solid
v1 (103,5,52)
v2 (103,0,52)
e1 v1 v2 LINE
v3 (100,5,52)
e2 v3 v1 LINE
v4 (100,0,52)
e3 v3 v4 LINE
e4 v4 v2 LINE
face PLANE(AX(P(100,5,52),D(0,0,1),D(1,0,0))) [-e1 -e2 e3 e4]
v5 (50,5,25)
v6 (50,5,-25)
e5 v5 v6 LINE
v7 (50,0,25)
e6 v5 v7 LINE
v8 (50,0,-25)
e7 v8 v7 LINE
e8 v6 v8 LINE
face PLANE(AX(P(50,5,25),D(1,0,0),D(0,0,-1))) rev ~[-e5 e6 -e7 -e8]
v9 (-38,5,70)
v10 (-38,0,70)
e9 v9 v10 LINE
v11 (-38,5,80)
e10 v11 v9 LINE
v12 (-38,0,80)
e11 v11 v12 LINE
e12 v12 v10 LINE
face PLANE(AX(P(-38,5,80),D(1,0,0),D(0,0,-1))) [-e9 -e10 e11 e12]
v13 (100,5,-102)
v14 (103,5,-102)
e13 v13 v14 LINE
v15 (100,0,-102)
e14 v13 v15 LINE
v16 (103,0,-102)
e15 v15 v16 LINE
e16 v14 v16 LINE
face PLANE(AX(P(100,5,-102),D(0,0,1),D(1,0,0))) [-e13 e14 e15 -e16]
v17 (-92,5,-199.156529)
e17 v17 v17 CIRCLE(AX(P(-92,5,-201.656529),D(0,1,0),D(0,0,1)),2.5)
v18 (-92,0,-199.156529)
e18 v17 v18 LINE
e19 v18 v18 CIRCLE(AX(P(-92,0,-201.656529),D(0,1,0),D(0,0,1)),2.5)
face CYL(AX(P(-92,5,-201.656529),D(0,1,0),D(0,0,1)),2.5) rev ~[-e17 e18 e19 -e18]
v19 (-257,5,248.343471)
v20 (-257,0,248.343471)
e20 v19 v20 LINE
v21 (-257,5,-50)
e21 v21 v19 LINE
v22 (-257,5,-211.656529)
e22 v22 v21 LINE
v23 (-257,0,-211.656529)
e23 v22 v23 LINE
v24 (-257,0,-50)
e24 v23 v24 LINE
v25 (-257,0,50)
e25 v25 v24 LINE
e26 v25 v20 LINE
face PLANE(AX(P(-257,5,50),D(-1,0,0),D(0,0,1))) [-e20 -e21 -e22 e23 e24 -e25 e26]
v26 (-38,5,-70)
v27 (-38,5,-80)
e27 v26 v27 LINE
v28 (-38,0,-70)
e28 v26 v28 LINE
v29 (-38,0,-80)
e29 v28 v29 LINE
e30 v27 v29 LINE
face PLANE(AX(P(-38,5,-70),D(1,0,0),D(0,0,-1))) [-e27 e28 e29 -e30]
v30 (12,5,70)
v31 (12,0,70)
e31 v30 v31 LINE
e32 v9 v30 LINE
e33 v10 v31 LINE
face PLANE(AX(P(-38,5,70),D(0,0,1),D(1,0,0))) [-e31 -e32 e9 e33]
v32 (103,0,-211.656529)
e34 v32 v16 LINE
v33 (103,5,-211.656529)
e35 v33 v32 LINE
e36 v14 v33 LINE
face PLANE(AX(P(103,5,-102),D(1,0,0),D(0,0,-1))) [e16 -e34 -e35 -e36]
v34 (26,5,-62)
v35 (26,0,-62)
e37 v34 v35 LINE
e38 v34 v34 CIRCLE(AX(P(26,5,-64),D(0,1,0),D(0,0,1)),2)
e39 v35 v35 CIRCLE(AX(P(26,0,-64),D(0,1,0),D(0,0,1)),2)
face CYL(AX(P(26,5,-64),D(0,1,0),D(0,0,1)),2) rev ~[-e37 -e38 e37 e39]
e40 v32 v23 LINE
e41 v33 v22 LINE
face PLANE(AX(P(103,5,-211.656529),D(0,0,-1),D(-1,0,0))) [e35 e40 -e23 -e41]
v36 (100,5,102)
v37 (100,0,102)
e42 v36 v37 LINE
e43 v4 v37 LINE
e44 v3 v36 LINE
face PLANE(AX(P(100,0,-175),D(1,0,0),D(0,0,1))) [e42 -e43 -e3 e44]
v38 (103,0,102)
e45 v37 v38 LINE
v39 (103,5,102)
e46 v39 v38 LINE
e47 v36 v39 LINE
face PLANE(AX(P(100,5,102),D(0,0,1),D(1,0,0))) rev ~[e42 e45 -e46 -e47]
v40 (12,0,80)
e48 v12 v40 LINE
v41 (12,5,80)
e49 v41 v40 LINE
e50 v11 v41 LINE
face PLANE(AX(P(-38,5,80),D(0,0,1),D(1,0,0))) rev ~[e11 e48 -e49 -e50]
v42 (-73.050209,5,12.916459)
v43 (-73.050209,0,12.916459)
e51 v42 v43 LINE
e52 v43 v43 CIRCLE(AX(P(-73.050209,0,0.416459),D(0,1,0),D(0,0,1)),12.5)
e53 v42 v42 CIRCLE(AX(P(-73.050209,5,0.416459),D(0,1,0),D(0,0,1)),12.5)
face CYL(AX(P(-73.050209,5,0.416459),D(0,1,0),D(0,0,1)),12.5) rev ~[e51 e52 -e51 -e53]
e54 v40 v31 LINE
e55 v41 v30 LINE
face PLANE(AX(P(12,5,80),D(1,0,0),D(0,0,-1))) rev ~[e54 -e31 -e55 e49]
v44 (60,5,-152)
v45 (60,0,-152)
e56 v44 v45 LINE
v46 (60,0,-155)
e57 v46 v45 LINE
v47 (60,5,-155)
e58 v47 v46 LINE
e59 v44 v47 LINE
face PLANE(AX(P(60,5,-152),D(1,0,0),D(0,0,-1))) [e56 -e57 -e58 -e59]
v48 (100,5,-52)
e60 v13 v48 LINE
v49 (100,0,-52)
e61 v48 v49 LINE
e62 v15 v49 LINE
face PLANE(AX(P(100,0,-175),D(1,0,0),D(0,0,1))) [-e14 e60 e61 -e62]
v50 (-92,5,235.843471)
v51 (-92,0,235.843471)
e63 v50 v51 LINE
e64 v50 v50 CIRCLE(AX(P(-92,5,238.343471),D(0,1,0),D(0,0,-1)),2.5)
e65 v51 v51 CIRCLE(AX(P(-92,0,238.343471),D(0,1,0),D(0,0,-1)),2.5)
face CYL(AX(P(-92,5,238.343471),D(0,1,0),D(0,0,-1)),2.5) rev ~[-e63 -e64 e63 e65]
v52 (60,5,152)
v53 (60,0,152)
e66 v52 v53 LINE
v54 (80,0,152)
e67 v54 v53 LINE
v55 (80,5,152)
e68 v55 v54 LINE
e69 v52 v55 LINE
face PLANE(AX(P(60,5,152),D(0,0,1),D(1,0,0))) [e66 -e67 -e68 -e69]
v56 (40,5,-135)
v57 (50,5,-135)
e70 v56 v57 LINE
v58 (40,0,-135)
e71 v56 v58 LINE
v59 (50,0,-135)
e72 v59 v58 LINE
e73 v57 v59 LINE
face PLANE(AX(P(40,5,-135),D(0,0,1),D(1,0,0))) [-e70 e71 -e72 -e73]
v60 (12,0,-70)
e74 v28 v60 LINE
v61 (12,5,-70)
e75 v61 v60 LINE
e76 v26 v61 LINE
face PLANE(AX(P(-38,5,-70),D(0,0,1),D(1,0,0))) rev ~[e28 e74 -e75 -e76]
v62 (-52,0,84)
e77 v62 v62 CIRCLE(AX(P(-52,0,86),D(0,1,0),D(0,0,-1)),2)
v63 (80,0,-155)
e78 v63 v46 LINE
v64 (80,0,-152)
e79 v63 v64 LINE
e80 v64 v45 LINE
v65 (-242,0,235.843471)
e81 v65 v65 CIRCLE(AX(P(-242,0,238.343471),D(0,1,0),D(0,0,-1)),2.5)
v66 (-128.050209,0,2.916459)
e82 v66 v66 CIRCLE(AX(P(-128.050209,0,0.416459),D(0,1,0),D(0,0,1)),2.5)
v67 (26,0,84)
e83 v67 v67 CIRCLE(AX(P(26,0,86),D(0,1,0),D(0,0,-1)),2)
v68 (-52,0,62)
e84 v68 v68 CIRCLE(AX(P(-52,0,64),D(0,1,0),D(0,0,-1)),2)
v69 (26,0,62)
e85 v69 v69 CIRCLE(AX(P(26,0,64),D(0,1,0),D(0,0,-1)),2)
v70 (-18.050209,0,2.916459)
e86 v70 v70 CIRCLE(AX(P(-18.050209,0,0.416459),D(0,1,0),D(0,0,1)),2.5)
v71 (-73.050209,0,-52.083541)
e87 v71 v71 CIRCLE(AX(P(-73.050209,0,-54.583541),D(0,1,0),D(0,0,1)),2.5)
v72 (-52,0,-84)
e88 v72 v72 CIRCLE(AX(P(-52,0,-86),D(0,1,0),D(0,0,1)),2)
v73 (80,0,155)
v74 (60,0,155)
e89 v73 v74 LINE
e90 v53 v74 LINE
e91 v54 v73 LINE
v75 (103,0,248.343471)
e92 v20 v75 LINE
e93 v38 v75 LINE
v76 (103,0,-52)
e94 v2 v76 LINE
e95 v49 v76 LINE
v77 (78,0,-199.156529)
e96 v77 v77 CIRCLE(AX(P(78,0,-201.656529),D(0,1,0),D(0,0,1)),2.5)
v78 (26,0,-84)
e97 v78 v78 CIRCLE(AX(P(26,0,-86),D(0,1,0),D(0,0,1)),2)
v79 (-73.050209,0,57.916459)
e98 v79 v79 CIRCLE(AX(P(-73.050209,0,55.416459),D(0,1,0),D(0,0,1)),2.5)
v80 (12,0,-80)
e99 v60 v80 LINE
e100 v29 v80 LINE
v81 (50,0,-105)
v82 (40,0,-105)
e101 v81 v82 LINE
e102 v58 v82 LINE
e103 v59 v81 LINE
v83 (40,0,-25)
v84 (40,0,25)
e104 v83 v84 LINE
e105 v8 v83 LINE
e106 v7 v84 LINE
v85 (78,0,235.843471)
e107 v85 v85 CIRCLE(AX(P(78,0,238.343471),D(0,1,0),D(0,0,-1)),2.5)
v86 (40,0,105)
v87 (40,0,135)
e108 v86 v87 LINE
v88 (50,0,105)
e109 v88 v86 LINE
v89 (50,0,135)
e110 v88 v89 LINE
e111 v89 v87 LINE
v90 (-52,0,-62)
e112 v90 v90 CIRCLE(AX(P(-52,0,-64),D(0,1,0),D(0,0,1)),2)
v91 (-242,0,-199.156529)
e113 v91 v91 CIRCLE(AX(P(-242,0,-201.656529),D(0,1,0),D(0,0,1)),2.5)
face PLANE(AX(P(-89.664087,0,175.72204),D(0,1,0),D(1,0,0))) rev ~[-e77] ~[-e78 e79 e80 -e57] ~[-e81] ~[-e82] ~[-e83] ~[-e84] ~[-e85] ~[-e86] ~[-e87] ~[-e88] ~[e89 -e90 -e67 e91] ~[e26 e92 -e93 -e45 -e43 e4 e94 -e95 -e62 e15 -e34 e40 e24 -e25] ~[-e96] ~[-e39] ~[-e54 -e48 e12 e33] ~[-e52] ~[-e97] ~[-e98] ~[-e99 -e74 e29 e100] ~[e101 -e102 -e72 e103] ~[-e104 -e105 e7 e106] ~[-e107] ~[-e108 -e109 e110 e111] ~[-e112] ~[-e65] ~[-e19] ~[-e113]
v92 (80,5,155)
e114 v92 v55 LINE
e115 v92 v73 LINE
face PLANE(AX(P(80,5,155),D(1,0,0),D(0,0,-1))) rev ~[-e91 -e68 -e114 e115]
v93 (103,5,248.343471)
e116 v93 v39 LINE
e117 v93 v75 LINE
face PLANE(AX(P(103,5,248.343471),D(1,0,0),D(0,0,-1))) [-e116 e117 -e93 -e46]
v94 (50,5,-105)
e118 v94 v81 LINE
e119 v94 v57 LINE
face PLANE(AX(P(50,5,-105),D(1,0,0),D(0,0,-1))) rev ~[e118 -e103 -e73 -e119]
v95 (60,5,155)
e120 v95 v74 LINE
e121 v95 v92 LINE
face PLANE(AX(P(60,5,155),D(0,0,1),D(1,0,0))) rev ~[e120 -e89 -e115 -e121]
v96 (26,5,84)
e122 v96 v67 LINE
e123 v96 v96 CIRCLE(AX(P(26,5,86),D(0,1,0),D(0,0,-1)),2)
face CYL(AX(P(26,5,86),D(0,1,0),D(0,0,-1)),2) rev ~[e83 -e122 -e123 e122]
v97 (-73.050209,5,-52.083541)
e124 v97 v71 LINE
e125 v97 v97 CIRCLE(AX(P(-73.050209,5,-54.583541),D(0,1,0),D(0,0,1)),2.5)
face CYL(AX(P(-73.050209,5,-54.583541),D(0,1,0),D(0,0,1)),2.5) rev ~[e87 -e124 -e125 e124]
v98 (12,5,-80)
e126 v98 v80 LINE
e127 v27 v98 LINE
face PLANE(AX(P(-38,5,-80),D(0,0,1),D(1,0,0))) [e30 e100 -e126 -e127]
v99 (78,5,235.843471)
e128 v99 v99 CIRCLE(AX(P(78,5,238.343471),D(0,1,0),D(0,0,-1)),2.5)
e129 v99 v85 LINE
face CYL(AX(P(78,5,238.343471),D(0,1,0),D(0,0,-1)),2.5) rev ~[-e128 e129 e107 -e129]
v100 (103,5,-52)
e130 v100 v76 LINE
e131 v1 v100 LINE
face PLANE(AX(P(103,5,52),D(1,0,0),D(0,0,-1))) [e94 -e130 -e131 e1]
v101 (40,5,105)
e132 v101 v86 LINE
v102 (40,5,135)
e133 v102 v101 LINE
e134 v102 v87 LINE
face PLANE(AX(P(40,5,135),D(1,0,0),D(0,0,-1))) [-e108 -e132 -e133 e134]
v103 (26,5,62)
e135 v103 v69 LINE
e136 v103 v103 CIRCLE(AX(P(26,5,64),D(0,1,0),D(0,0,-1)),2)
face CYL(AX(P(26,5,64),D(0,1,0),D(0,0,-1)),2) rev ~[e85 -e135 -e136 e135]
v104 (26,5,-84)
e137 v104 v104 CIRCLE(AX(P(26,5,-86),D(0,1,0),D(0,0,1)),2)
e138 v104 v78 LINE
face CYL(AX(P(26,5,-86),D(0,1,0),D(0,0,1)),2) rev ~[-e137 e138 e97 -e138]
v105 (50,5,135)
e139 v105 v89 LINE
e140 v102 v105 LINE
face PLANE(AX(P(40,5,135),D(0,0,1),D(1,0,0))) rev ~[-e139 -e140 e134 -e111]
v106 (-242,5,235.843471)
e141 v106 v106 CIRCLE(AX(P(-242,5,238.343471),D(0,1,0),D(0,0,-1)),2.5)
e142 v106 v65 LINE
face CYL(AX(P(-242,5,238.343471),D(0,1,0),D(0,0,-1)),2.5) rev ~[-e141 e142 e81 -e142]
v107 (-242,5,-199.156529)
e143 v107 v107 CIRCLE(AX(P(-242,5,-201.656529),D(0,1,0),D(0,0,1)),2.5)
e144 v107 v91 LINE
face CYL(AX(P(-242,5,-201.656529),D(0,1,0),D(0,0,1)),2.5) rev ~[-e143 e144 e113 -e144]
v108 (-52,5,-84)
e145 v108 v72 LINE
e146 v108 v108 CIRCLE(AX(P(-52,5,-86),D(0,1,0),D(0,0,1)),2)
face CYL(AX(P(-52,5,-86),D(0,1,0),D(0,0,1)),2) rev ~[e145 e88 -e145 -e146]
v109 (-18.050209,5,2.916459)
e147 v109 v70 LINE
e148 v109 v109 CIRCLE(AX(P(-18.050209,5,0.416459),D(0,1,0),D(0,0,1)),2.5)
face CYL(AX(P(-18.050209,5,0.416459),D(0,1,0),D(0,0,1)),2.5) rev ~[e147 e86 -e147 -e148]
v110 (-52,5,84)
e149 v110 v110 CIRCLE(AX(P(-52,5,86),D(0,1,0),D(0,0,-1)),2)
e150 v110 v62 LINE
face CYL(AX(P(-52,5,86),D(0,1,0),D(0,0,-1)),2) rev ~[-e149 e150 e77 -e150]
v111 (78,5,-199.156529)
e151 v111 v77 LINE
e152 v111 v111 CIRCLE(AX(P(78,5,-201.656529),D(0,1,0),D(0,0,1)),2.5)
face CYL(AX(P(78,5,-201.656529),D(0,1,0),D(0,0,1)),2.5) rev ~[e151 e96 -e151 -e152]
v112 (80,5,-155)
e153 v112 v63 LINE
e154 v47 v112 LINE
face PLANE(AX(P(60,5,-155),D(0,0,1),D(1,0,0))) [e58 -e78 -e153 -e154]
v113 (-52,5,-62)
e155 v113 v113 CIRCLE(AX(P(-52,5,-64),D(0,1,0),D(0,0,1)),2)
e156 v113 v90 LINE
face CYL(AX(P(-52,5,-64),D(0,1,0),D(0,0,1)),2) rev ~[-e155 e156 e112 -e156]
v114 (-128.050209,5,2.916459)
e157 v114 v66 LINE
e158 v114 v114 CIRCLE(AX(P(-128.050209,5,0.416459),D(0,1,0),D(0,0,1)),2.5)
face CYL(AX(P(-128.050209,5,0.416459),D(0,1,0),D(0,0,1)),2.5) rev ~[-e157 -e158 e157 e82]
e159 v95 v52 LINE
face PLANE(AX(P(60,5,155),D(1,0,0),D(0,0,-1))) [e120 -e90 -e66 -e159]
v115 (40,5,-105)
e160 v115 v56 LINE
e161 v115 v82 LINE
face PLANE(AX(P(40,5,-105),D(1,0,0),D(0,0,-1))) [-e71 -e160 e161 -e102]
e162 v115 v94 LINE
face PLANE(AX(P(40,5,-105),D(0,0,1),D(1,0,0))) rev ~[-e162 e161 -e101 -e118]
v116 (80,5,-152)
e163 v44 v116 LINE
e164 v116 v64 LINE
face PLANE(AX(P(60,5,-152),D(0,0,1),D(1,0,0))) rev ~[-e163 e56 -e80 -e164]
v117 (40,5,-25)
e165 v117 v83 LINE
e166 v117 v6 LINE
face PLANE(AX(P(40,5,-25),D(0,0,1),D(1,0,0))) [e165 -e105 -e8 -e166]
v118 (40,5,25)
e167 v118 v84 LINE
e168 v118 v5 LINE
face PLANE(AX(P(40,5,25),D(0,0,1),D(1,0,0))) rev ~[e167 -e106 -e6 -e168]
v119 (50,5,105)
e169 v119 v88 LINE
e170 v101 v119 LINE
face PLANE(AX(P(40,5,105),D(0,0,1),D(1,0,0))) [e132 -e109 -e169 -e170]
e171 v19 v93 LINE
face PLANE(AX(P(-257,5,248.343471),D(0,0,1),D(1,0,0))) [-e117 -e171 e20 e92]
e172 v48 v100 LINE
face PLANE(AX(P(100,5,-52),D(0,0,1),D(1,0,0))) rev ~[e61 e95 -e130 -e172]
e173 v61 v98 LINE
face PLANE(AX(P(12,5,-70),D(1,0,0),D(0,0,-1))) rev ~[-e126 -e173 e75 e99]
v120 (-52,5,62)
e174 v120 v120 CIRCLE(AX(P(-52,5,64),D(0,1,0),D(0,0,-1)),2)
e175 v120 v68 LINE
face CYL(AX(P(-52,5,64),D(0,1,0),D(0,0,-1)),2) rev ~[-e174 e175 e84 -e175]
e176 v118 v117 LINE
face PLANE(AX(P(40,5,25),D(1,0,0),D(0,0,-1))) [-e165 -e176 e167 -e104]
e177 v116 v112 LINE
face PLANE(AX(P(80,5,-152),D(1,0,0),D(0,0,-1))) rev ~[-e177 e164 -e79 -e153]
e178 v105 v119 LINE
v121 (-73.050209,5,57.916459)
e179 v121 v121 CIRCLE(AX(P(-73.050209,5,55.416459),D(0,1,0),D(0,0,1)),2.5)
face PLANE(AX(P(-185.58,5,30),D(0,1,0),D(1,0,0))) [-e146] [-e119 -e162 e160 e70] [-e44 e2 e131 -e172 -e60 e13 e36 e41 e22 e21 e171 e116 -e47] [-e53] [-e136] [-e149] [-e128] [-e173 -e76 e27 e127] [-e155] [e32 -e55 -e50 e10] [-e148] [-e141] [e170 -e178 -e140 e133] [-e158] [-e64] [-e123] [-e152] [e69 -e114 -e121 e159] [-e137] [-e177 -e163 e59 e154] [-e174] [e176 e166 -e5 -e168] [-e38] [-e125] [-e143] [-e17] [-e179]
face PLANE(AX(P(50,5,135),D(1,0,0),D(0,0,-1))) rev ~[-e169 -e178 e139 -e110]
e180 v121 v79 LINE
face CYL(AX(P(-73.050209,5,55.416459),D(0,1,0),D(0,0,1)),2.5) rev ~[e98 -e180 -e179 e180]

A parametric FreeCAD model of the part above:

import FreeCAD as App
import Part
import Sketcher

V = App.Vector
Q = App.Units.Quantity


def add_polygon(sketch, points):
    """Adds a closed chain of lines whose ends are joined by coincident constraints."""
    first, n = sketch.GeometryCount, len(points)
    for a, b in zip(points, points[1:] + points[:1]):
        sketch.addGeometry(Part.LineSegment(App.Vector(*a, 0), App.Vector(*b, 0)), False)
    for i in range(n):
        sketch.addConstraint(Sketcher.Constraint("Coincident", first + i, 2, first + (i + 1) % n, 1))

doc = App.newDocument("Part")
body = doc.addObject("PartDesign::Body", "Body")

sketch1 = body.newObject("Sketcher::SketchObject", "Sketch")
sketch1.AttachmentSupport = (doc.getObject("XZ_Plane"), [""])
sketch1.MapMode = "FlatFace"
add_polygon(sketch1, [(0, -175), (-50, -175), (-50, -185), (-100, -185), (-100, 185), (-50, 185), (-50, 175), (0, 175), (0, 185), (50, 185), (50, 175), (100, 175), (100, -175), (50, -175), (50, -185), (0, -185)])
sketch1.addConstraint([
    Sketcher.Constraint("Horizontal", 0),
    Sketcher.Constraint("Vertical", 1),
    Sketcher.Constraint("Horizontal", 2),
    Sketcher.Constraint("Vertical", 3),
    Sketcher.Constraint("Horizontal", 4),
    Sketcher.Constraint("Vertical", 5),
    Sketcher.Constraint("Horizontal", 6),
    Sketcher.Constraint("Vertical", 7),
    Sketcher.Constraint("Horizontal", 8),
    Sketcher.Constraint("Vertical", 9),
    Sketcher.Constraint("Horizontal", 10),
    Sketcher.Constraint("Vertical", 11),
    Sketcher.Constraint("Horizontal", 12),
    Sketcher.Constraint("Vertical", 13),
    Sketcher.Constraint("Horizontal", 14),
    Sketcher.Constraint("Vertical", 15),
    Sketcher.Constraint("Symmetric", 1, 2, 8, 2, -1, 1),
    Sketcher.Constraint("Symmetric", 5, 2, 12, 2, -1, 1),
    Sketcher.Constraint("Symmetric", 7, 2, 14, 2, -1, 1),
    Sketcher.Constraint("Symmetric", 4, 2, 8, 2, -2),
    Sketcher.Constraint("Symmetric", 6, 2, 15, 2, -1),
    Sketcher.Constraint("Horizontal", 6, 2, 9, 2),
    Sketcher.Constraint("Equal", 0, 2),
    Sketcher.Constraint("Equal", 8, 10),
    Sketcher.Constraint("DistanceX", 0, 2, 0, 1, Q("50 mm")),
    Sketcher.Constraint("DistanceY", 1, 2, 1, 1, Q("10 mm")),
    Sketcher.Constraint("DistanceY", 3, 1, 3, 2, Q("370 mm")),
])
pad1 = body.newObject("PartDesign::Pad", "Pad")
pad1.Profile = sketch1
pad1.Length = 5
pad1.Reversed = True

sketch2 = body.newObject("Sketcher::SketchObject", "Sketch001")
sketch2.AttachmentSupport = (doc.getObject("XZ_Plane"), [""])
sketch2.MapMode = "FlatFace"
sketch2.AttachmentOffset = App.Placement(V(0, 0, -5), App.Rotation())
add_polygon(sketch2, [(60, -155), (60, -152), (80, -152), (80, -155)])
add_polygon(sketch2, [(60, 152), (60, 155), (80, 155), (80, 152)])
add_polygon(sketch2, [(40, -135), (40, -105), (50, -105), (50, -135)])
add_polygon(sketch2, [(40, 105), (40, 135), (50, 135), (50, 105)])
add_polygon(sketch2, [(40, -25), (40, 25), (50, 25), (50, -25)])
sketch2.addConstraint([
    Sketcher.Constraint("Vertical", 0),
    Sketcher.Constraint("Horizontal", 1),
    Sketcher.Constraint("Vertical", 2),
    Sketcher.Constraint("Horizontal", 3),
    Sketcher.Constraint("Vertical", 4),
    Sketcher.Constraint("Horizontal", 5),
    Sketcher.Constraint("Vertical", 6),
    Sketcher.Constraint("Horizontal", 7),
    Sketcher.Constraint("Vertical", 8),
    Sketcher.Constraint("Horizontal", 9),
    Sketcher.Constraint("Vertical", 10),
    Sketcher.Constraint("Horizontal", 11),
    Sketcher.Constraint("Vertical", 12),
    Sketcher.Constraint("Horizontal", 13),
    Sketcher.Constraint("Vertical", 14),
    Sketcher.Constraint("Horizontal", 15),
    Sketcher.Constraint("Vertical", 16),
    Sketcher.Constraint("Horizontal", 17),
    Sketcher.Constraint("Vertical", 18),
    Sketcher.Constraint("Horizontal", 19),
    Sketcher.Constraint("Symmetric", 3, 2, 4, 2, -1),
    Sketcher.Constraint("Symmetric", 1, 2, 6, 2, -1),
    Sketcher.Constraint("Symmetric", 11, 2, 12, 2, -1),
    Sketcher.Constraint("Symmetric", 9, 2, 14, 2, -1),
    Sketcher.Constraint("Vertical", 15, 2, 16, 2),
    Sketcher.Constraint("Vertical", 14, 2, 17, 2),
    Sketcher.Constraint("DistanceX", 1, 1, 1, 2, Q("20 mm")),
    Sketcher.Constraint("DistanceX", 9, 1, 9, 2, Q("10 mm")),
    Sketcher.Constraint("DistanceY", 0, 1, 0, 2, Q("3 mm")),
    Sketcher.Constraint("DistanceY", 8, 1, 8, 2, Q("30 mm")),
    Sketcher.Constraint("DistanceY", 16, 1, 16, 2, Q("50 mm")),
    Sketcher.Constraint("DistanceX", -1, 1, 0, 2, Q("60 mm")),
    Sketcher.Constraint("DistanceY", 0, 2, -1, 1, Q("152 mm")),
    Sketcher.Constraint("DistanceX", -1, 1, 8, 2, Q("40 mm")),
    Sketcher.Constraint("DistanceY", 8, 2, -1, 1, Q("105 mm")),
    Sketcher.Constraint("DistanceY", -1, 1, 16, 2, Q("25 mm")),
])
pocket1 = body.newObject("PartDesign::Pocket", "Pocket")
pocket1.Profile = sketch2
pocket1.Type = "ThroughAll"
pocket1.Reversed = True

sketch3 = body.newObject("Sketcher::SketchObject", "Sketch002")
sketch3.AttachmentSupport = (doc.getObject("XZ_Plane"), [""])
sketch3.MapMode = "FlatFace"
sketch3.AttachmentOffset = App.Placement(V(0, 0, -5), App.Rotation())
add_polygon(sketch3, [(-100, -50), (-541, -50), (-541, -185), (-591, -185), (-591, 185), (-541, 185), (-541, 50), (-100, 50)])
sketch3.addConstraint([
    Sketcher.Constraint("Horizontal", 0),
    Sketcher.Constraint("Vertical", 1),
    Sketcher.Constraint("Horizontal", 2),
    Sketcher.Constraint("Vertical", 3),
    Sketcher.Constraint("Horizontal", 4),
    Sketcher.Constraint("Vertical", 5),
    Sketcher.Constraint("Horizontal", 6),
    Sketcher.Constraint("Vertical", 7),
    Sketcher.Constraint("Symmetric", 1, 2, 4, 2, -1),
    Sketcher.Constraint("Equal", 1, 5),
    Sketcher.Constraint("DistanceX", 2, 2, 2, 1, Q("50 mm")),
    Sketcher.Constraint("DistanceY", 1, 2, 1, 1, Q("135 mm")),
    Sketcher.Constraint("DistanceY", 3, 1, 3, 2, Q("370 mm")),
    Sketcher.Constraint("DistanceX", 6, 2, -1, 1, Q("100 mm")),
    Sketcher.Constraint("DistanceX", 0, 2, 0, 1, Q("440.91 mm")),
])
pad2 = body.newObject("PartDesign::Pad", "Pad001")
pad2.Profile = sketch3
pad2.Length = 5

sketch4 = body.newObject("Sketcher::SketchObject", "Sketch003")
sketch4.AttachmentSupport = (doc.getObject("XZ_Plane"), [""])
sketch4.MapMode = "FlatFace"
sketch4.AttachmentOffset = App.Placement(V(0, 0, -5), App.Rotation())
sketch4.addGeometry([
    Part.Circle(V(-578.9, -145, 0), V(0, 0, 1), 2),
    Part.Circle(V(-578.9, -95, 0), V(0, 0, 1), 2),
    Part.Circle(V(-566.9, -145, 0), V(0, 0, 1), 2),
    Part.Circle(V(-566.9, -95, 0), V(0, 0, 1), 2),
    Part.Circle(V(-578.9, 145, 0), V(0, 0, 1), 2),
    Part.Circle(V(-578.9, 95, 0), V(0, 0, 1), 2),
    Part.Circle(V(-566.9, 95, 0), V(0, 0, 1), 2),
    Part.Circle(V(-566.9, 145, 0), V(0, 0, 1), 2),
], False)
sketch4.addConstraint([
    Sketcher.Constraint("Equal", 0, 1),
    Sketcher.Constraint("Equal", 1, 2),
    Sketcher.Constraint("Equal", 2, 3),
    Sketcher.Constraint("Equal", 3, 4),
    Sketcher.Constraint("Equal", 4, 5),
    Sketcher.Constraint("Equal", 5, 6),
    Sketcher.Constraint("Equal", 6, 7),
    Sketcher.Constraint("Symmetric", 0, 3, 4, 3, -1),
    Sketcher.Constraint("Symmetric", 1, 3, 5, 3, -1),
    Sketcher.Constraint("Symmetric", 3, 3, 6, 3, -1),
    Sketcher.Constraint("Symmetric", 2, 3, 7, 3, -1),
    Sketcher.Constraint("Horizontal", 0, 3, 2, 3),
    Sketcher.Constraint("Horizontal", 1, 3, 3, 3),
    Sketcher.Constraint("Vertical", 0, 3, 1, 3),
    Sketcher.Constraint("Vertical", 2, 3, 3, 3),
    Sketcher.Constraint("Diameter", 0, Q("4 mm")),
    Sketcher.Constraint("DistanceY", 0, 3, -1, 1, Q("145 mm")),
    Sketcher.Constraint("DistanceY", 1, 3, -1, 1, Q("95 mm")),
    Sketcher.Constraint("DistanceX", 0, 3, 2, 3, Q("12 mm")),
    Sketcher.Constraint("DistanceX", 0, 3, -1, 1, Q("578.91 mm")),
])
pocket2 = body.newObject("PartDesign::Pocket", "Pocket001")
pocket2.Profile = sketch4
pocket2.Type = "ThroughAll"
pocket2.Reversed = True

sketch5 = body.newObject("Sketcher::SketchObject", "Sketch004")
sketch5.AttachmentSupport = (doc.getObject("XZ_Plane"), [""])
sketch5.MapMode = "FlatFace"
sketch5.AttachmentOffset = App.Placement(V(0, 0, -5), App.Rotation())
add_polygon(sketch5, [(100, 102), (100, 152), (103, 152), (103, 102)])
add_polygon(sketch5, [(100, -152), (100, -102), (103, -102), (103, -152)])
add_polygon(sketch5, [(100, -52), (100, 52), (103, 52), (103, -52)])
sketch5.addConstraint([
    Sketcher.Constraint("Vertical", 0),
    Sketcher.Constraint("Horizontal", 1),
    Sketcher.Constraint("Vertical", 2),
    Sketcher.Constraint("Horizontal", 3),
    Sketcher.Constraint("Vertical", 4),
    Sketcher.Constraint("Horizontal", 5),
    Sketcher.Constraint("Vertical", 6),
    Sketcher.Constraint("Horizontal", 7),
    Sketcher.Constraint("Vertical", 8),
    Sketcher.Constraint("Horizontal", 9),
    Sketcher.Constraint("Vertical", 10),
    Sketcher.Constraint("Horizontal", 11),
    Sketcher.Constraint("Symmetric", 3, 2, 4, 2, -1),
    Sketcher.Constraint("Symmetric", 1, 2, 6, 2, -1),
    Sketcher.Constraint("Vertical", 7, 2, 8, 2),
    Sketcher.Constraint("Vertical", 6, 2, 9, 2),
    Sketcher.Constraint("DistanceX", 1, 1, 1, 2, Q("3 mm")),
    Sketcher.Constraint("DistanceY", 0, 1, 0, 2, Q("50 mm")),
    Sketcher.Constraint("DistanceY", 8, 1, 8, 2, Q("104 mm")),
    Sketcher.Constraint("DistanceX", -1, 1, 0, 2, Q("100 mm")),
    Sketcher.Constraint("DistanceY", -1, 1, 0, 2, Q("152 mm")),
    Sketcher.Constraint("DistanceY", -1, 1, 8, 2, Q("52 mm")),
])
pad3 = body.newObject("PartDesign::Pad", "Pad002")
pad3.Profile = sketch5
pad3.Length = 5

sketch6 = body.newObject("Sketcher::SketchObject", "Sketch005")
sketch6.AttachmentSupport = (doc.getObject("XZ_Plane"), [""])
sketch6.MapMode = "FlatFace"
sketch6.AttachmentOffset = App.Placement(V(0, 0, -5), App.Rotation())
add_polygon(sketch6, [(-540.9, 185), (-537.9, 185), (-537.9, 92), (-495.9, 50), (-540.9, 50)])
add_polygon(sketch6, [(-495.9, -50), (-537.9, -92), (-537.9, -185), (-540.9, -185), (-540.9, -50)])
add_polygon(sketch6, [(-100, -95), (-145, -50), (-100, -50)])
add_polygon(sketch6, [(-145, 50), (-100, 95), (-100, 50)])
sketch6.addConstraint([
    Sketcher.Constraint("Horizontal", 0),
    Sketcher.Constraint("Vertical", 1),
    Sketcher.Constraint("Horizontal", 3),
    Sketcher.Constraint("Vertical", 4),
    Sketcher.Constraint("Vertical", 6),
    Sketcher.Constraint("Horizontal", 7),
    Sketcher.Constraint("Vertical", 8),
    Sketcher.Constraint("Horizontal", 9),
    Sketcher.Constraint("Horizontal", 11),
    Sketcher.Constraint("Vertical", 12),
    Sketcher.Constraint("Vertical", 14),
    Sketcher.Constraint("Horizontal", 15),
    Sketcher.Constraint("Symmetric", 1, 2, 5, 2, -1),
    Sketcher.Constraint("Symmetric", 4, 2, 7, 2, -1),
    Sketcher.Constraint("Symmetric", 2, 2, 9, 2, -1),
    Sketcher.Constraint("Symmetric", 12, 2, 13, 2, -1),
    Sketcher.Constraint("Symmetric", 10, 2, 15, 2, -1),
    Sketcher.Constraint("Perpendicular", 2, 5),
    Sketcher.Constraint("Perpendicular", 5, 10),
    Sketcher.Constraint("Horizontal", 9, 2, 10, 2),
    Sketcher.Constraint("Equal", 9, 11),
    Sketcher.Constraint("DistanceX", 0, 1, 0, 2, Q("3 mm")),
    Sketcher.Constraint("DistanceX", 3, 2, 3, 1, Q("45 mm")),
    Sketcher.Constraint("DistanceY", 1, 2, 1, 1, Q("93 mm")),
    Sketcher.Constraint("DistanceY", -1, 1, 0, 2, Q("185 mm")),
    Sketcher.Constraint("DistanceX", 10, 2, -1, 1, Q("145 mm")),
    Sketcher.Constraint("DistanceX", 0, 2, -1, 1, Q("537.91 mm")),
])
pad4 = body.newObject("PartDesign::Pad", "Pad003")
pad4.Profile = sketch6
pad4.Length = 5

sketch7 = body.newObject("Sketcher::SketchObject", "Sketch006")
sketch7.AttachmentSupport = (doc.getObject("XZ_Plane"), [""])
sketch7.MapMode = "FlatFace"
sketch7.AttachmentOffset = App.Placement(V(0, 0, -5), App.Rotation())
sketch7.addGeometry(Part.Circle(V(-52, -86, 0), V(0, 0, 1), 2), False)
sketch7.addGeometry(Part.Circle(V(-52, -64, 0), V(0, 0, 1), 2), False)
sketch7.addGeometry(Part.Circle(V(26, -86, 0), V(0, 0, 1), 2), False)
sketch7.addGeometry(Part.Circle(V(26, -64, 0), V(0, 0, 1), 2), False)
sketch7.addGeometry(Part.Circle(V(-52, 86, 0), V(0, 0, 1), 2), False)
sketch7.addGeometry(Part.Circle(V(-52, 64, 0), V(0, 0, 1), 2), False)
sketch7.addGeometry(Part.Circle(V(26, 64, 0), V(0, 0, 1), 2), False)
sketch7.addGeometry(Part.Circle(V(26, 86, 0), V(0, 0, 1), 2), False)
add_polygon(sketch7, [(-38, -80), (-38, -70), (12, -70), (12, -80)])
add_polygon(sketch7, [(-38, 70), (-38, 80), (12, 80), (12, 70)])
sketch7.addConstraint([
    Sketcher.Constraint("Vertical", 8),
    Sketcher.Constraint("Horizontal", 9),
    Sketcher.Constraint("Vertical", 10),
    Sketcher.Constraint("Horizontal", 11),
    Sketcher.Constraint("Vertical", 12),
    Sketcher.Constraint("Horizontal", 13),
    Sketcher.Constraint("Vertical", 14),
    Sketcher.Constraint("Horizontal", 15),
    Sketcher.Constraint("Equal", 0, 1),
    Sketcher.Constraint("Equal", 1, 2),
    Sketcher.Constraint("Equal", 2, 3),
    Sketcher.Constraint("Equal", 3, 4),
    Sketcher.Constraint("Equal", 4, 5),
    Sketcher.Constraint("Equal", 5, 6),
    Sketcher.Constraint("Equal", 6, 7),
    Sketcher.Constraint("Symmetric", 0, 3, 4, 3, -1),
    Sketcher.Constraint("Symmetric", 1, 3, 5, 3, -1),
    Sketcher.Constraint("Symmetric", 3, 3, 6, 3, -1),
    Sketcher.Constraint("Symmetric", 2, 3, 7, 3, -1),
    Sketcher.Constraint("Symmetric", 11, 2, 12, 2, -1),
    Sketcher.Constraint("Symmetric", 9, 2, 14, 2, -1),
    Sketcher.Constraint("Horizontal", 0, 3, 2, 3),
    Sketcher.Constraint("Horizontal", 1, 3, 3, 3),
    Sketcher.Constraint("Vertical", 0, 3, 1, 3),
    Sketcher.Constraint("Vertical", 2, 3, 3, 3),
    Sketcher.Constraint("Diameter", 0, Q("4 mm")),
    Sketcher.Constraint("DistanceX", 9, 1, 9, 2, Q("50 mm")),
    Sketcher.Constraint("DistanceY", 8, 1, 8, 2, Q("10 mm")),
    Sketcher.Constraint("DistanceX", 0, 3, -1, 1, Q("52 mm")),
    Sketcher.Constraint("DistanceY", 0, 3, -1, 1, Q("86 mm")),
    Sketcher.Constraint("DistanceY", 1, 3, -1, 1, Q("64 mm")),
    Sketcher.Constraint("DistanceX", -1, 1, 2, 3, Q("26 mm")),
    Sketcher.Constraint("DistanceX", 8, 2, -1, 1, Q("38 mm")),
    Sketcher.Constraint("DistanceY", 8, 2, -1, 1, Q("70 mm")),
])
pocket3 = body.newObject("PartDesign::Pocket", "Pocket002")
pocket3.Profile = sketch7
pocket3.Type = "ThroughAll"
pocket3.Reversed = True

sketch8 = body.newObject("Sketcher::SketchObject", "Sketch007")
sketch8.AttachmentSupport = (doc.getObject("XZ_Plane"), [""])
sketch8.MapMode = "FlatFace"
sketch8.AttachmentOffset = App.Placement(V(0, 0, -5), App.Rotation())
sketch8.addGeometry([
    Part.Circle(V(-437.9, -30, 0), V(0, 0, 1), 2),
    Part.Circle(V(-235.6, -30, 0), V(0, 0, 1), 2),
    Part.Circle(V(-185.6, -30, 0), V(0, 0, 1), 2),
    Part.Circle(V(-185.6, 30, 0), V(0, 0, 1), 2),
    Part.Circle(V(-235.6, 30, 0), V(0, 0, 1), 2),
    Part.Circle(V(-437.9, 30, 0), V(0, 0, 1), 2),
], False)
sketch8.addConstraint([
    Sketcher.Constraint("Equal", 0, 1),
    Sketcher.Constraint("Equal", 1, 2),
    Sketcher.Constraint("Equal", 2, 3),
    Sketcher.Constraint("Equal", 3, 4),
    Sketcher.Constraint("Equal", 4, 5),
    Sketcher.Constraint("Symmetric", 2, 3, 3, 3, -1),
    Sketcher.Constraint("Symmetric", 1, 3, 4, 3, -1),
    Sketcher.Constraint("Symmetric", 0, 3, 5, 3, -1),
    Sketcher.Constraint("Horizontal", 0, 3, 1, 3),
    Sketcher.Constraint("Horizontal", 1, 3, 2, 3),
    Sketcher.Constraint("Diameter", 0, Q("4 mm")),
    Sketcher.Constraint("DistanceY", 0, 3, -1, 1, Q("30 mm")),
    Sketcher.Constraint("DistanceX", 1, 3, 2, 3, Q("50 mm")),
    Sketcher.Constraint("DistanceX", 0, 3, -1, 1, Q("437.91 mm")),
    Sketcher.Constraint("DistanceX", 1, 3, -1, 1, Q("235.58 mm")),
])
pocket4 = body.newObject("PartDesign::Pocket", "Pocket003")
pocket4.Profile = sketch8
pocket4.Type = "ThroughAll"
pocket4.Reversed = True

sketch9 = body.newObject("Sketcher::SketchObject", "Sketch008")
sketch9.AttachmentSupport = (doc.getObject("XZ_Plane"), [""])
sketch9.MapMode = "FlatFace"
sketch9.AttachmentOffset = App.Placement(V(0, 0, -5), App.Rotation())
sketch9.addGeometry(Part.Circle(V(-73, 0, 0), V(0, 0, 1), 8), False)
sketch9.addConstraint([
    Sketcher.Constraint("PointOnObject", 0, 3, -1),
    Sketcher.Constraint("Diameter", 0, Q("15 mm")),
    Sketcher.Constraint("DistanceX", 0, 3, -1, 1, Q("73 mm")),
])
pocket5 = body.newObject("PartDesign::Pocket", "Pocket004")
pocket5.Profile = sketch9
pocket5.Type = "ThroughAll"
pocket5.Reversed = True

sketch10 = body.newObject("Sketcher::SketchObject", "Sketch009")
sketch10.AttachmentSupport = (doc.getObject("XZ_Plane"), [""])
sketch10.MapMode = "FlatFace"
sketch10.AttachmentOffset = App.Placement(V(0, 0, -5), App.Rotation())
add_polygon(sketch10, [(-145, 50), (-257, 50), (-257, 248.3), (103, 248.3), (103, 152), (100, 152), (100, 175), (50, 175), (50, 185), (0, 185), (0, 175), (-50, 175), (-50, 185), (-100, 185), (-100, 95)])
add_polygon(sketch10, [(103, -152), (103, -211.7), (-257, -211.7), (-257, -50), (-145, -50), (-100, -95), (-100, -185), (-50, -185), (-50, -175), (0, -175), (0, -185), (50, -185), (50, -175), (100, -175), (100, -152)])
sketch10.addConstraint([
    Sketcher.Constraint("Horizontal", 0),
    Sketcher.Constraint("Vertical", 1),
    Sketcher.Constraint("Horizontal", 2),
    Sketcher.Constraint("Vertical", 3),
    Sketcher.Constraint("Horizontal", 4),
    Sketcher.Constraint("Vertical", 5),
    Sketcher.Constraint("Horizontal", 6),
    Sketcher.Constraint("Vertical", 7),
    Sketcher.Constraint("Horizontal", 8),
    Sketcher.Constraint("Vertical", 9),
    Sketcher.Constraint("Horizontal", 10),
    Sketcher.Constraint("Vertical", 11),
    Sketcher.Constraint("Horizontal", 12),
    Sketcher.Constraint("Vertical", 13),
    Sketcher.Constraint("Vertical", 15),
    Sketcher.Constraint("Horizontal", 16),
    Sketcher.Constraint("Vertical", 17),
    Sketcher.Constraint("Horizontal", 18),
    Sketcher.Constraint("Vertical", 20),
    Sketcher.Constraint("Horizontal", 21),
    Sketcher.Constraint("Vertical", 22),
    Sketcher.Constraint("Horizontal", 23),
    Sketcher.Constraint("Vertical", 24),
    Sketcher.Constraint("Horizontal", 25),
    Sketcher.Constraint("Vertical", 26),
    Sketcher.Constraint("Horizontal", 27),
    Sketcher.Constraint("Vertical", 28),
    Sketcher.Constraint("Horizontal", 29),
    Sketcher.Constraint("Symmetric", 7, 2, 21, 2, -1, 1),
    Sketcher.Constraint("Symmetric", 9, 2, 23, 2, -1, 1),
    Sketcher.Constraint("Symmetric", 11, 2, 25, 2, -1, 1),
    Sketcher.Constraint("Symmetric", 6, 2, 10, 2, -2),
    Sketcher.Constraint("Symmetric", 0, 2, 17, 2, -1),
    Sketcher.Constraint("Symmetric", 13, 2, 19, 2, -1),
    Sketcher.Constraint("Symmetric", 8, 2, 24, 2, -1),
    Sketcher.Constraint("Symmetric", 5, 2, 27, 2, -1),
    Sketcher.Constraint("Symmetric", 3, 2, 29, 2, -1),
    Sketcher.Constraint("Perpendicular", 14, 19),
    Sketcher.Constraint("Vertical", 14, 2, 18, 2),
    Sketcher.Constraint("Equal", 6, 8),
    Sketcher.Constraint("Equal", 10, 12),
    Sketcher.Constraint("DistanceX", 0, 2, 0, 1, Q("112 mm")),
    Sketcher.Constraint("DistanceX", 2, 1, 2, 2, Q("360 mm")),
    Sketcher.Constraint("DistanceX", 4, 2, 4, 1, Q("3 mm")),
    Sketcher.Constraint("DistanceX", 6, 2, 6, 1, Q("50 mm")),
    Sketcher.Constraint("DistanceY", 5, 1, 5, 2, Q("23 mm")),
    Sketcher.Constraint("DistanceY", 7, 1, 7, 2, Q("10 mm")),
    Sketcher.Constraint("DistanceY", 13, 2, 13, 1, Q("90 mm")),
    Sketcher.Constraint("DistanceY", -1, 1, 0, 2, Q("50 mm")),
    Sketcher.Constraint("DistanceY", 1, 1, 1, 2, Q("198.343471 mm")),
    Sketcher.Constraint("DistanceY", 15, 2, 15, 1, Q("59.656529 mm")),
])
pad5 = body.newObject("PartDesign::Pad", "Pad004")
pad5.Profile = sketch10
pad5.Length = 5

sketch11 = body.newObject("Sketcher::SketchObject", "Sketch010")
sketch11.AttachmentSupport = (doc.getObject("XZ_Plane"), [""])
sketch11.MapMode = "FlatFace"
sketch11.AttachmentOffset = App.Placement(V(0, 0, -5), App.Rotation())
add_polygon(sketch11, [(-627, -212), (-627, 248), (-257, 248), (-257, -212)])
sketch11.addConstraint([
    Sketcher.Constraint("Vertical", 0),
    Sketcher.Constraint("Horizontal", 1),
    Sketcher.Constraint("Vertical", 2),
    Sketcher.Constraint("Horizontal", 3),
    Sketcher.Constraint("DistanceY", 0, 1, 0, 2, Q("460 mm")),
    Sketcher.Constraint("DistanceX", 1, 2, -1, 1, Q("257 mm")),
    Sketcher.Constraint("DistanceX", 1, 1, 1, 2, Q("370.43631 mm")),
    Sketcher.Constraint("DistanceY", -1, 1, 0, 2, Q("248.343471 mm")),
])
pocket6 = body.newObject("PartDesign::Pocket", "Pocket005")
pocket6.Profile = sketch11
pocket6.Type = "ThroughAll"
pocket6.Reversed = True

sketch12 = body.newObject("Sketcher::SketchObject", "Sketch011")
sketch12.AttachmentSupport = (doc.getObject("XZ_Plane"), [""])
sketch12.MapMode = "FlatFace"
sketch12.AttachmentOffset = App.Placement(V(0, 0, -5), App.Rotation())
sketch12.addGeometry([
    Part.Circle(V(-73.1, 55.4, 0), V(0, 0, 1), 2.5),
    Part.Circle(V(-128.1, 0.4, 0), V(0, 0, 1), 2.5),
    Part.Circle(V(-73.1, -54.6, 0), V(0, 0, 1), 2.5),
    Part.Circle(V(-18.1, 0.4, 0), V(0, 0, 1), 2.5),
    Part.Circle(V(-73.1, 0.4, 0), V(0, 0, 1), 12.5),
    Part.Circle(V(-242, -201.7, 0), V(0, 0, 1), 2.5),
    Part.Circle(V(-92, -201.7, 0), V(0, 0, 1), 2.5),
    Part.Circle(V(78, -201.7, 0), V(0, 0, 1), 2.5),
    Part.Circle(V(78, 238.3, 0), V(0, 0, 1), 2.5),
    Part.Circle(V(-92, 238.3, 0), V(0, 0, 1), 2.5),
    Part.Circle(V(-242, 238.3, 0), V(0, 0, 1), 2.5),
], False)
sketch12.addConstraint([
    Sketcher.Constraint("Equal", 0, 1),
    Sketcher.Constraint("Equal", 1, 2),
    Sketcher.Constraint("Equal", 2, 3),
    Sketcher.Constraint("Equal", 3, 5),
    Sketcher.Constraint("Equal", 5, 6),
    Sketcher.Constraint("Equal", 6, 7),
    Sketcher.Constraint("Equal", 7, 8),
    Sketcher.Constraint("Equal", 8, 9),
    Sketcher.Constraint("Equal", 9, 10),
    Sketcher.Constraint("Horizontal", 1, 3, 3, 3),
    Sketcher.Constraint("Horizontal", 3, 3, 4, 3),
    Sketcher.Constraint("Horizontal", 5, 3, 6, 3),
    Sketcher.Constraint("Horizontal", 6, 3, 7, 3),
    Sketcher.Constraint("Horizontal", 8, 3, 9, 3),
    Sketcher.Constraint("Horizontal", 9, 3, 10, 3),
    Sketcher.Constraint("Vertical", 0, 3, 2, 3),
    Sketcher.Constraint("Vertical", 2, 3, 4, 3),
    Sketcher.Constraint("Vertical", 7, 3, 8, 3),
    Sketcher.Constraint("Vertical", 6, 3, 9, 3),
    Sketcher.Constraint("Vertical", 5, 3, 10, 3),
    Sketcher.Constraint("Diameter", 0, Q("5 mm")),
    Sketcher.Constraint("Diameter", 4, Q("25 mm")),
    Sketcher.Constraint("DistanceX", 5, 3, -1, 1, Q("242 mm")),
    Sketcher.Constraint("DistanceX", 6, 3, -1, 1, Q("92 mm")),
    Sketcher.Constraint("DistanceX", -1, 1, 7, 3, Q("78 mm")),
    Sketcher.Constraint("DistanceX", 1, 3, 0, 3, Q("55 mm")),
    Sketcher.Constraint("DistanceY", 1, 3, 0, 3, Q("55 mm")),
    Sketcher.Constraint("DistanceY", 2, 3, 1, 3, Q("55 mm")),
    Sketcher.Constraint("DistanceX", 0, 3, 3, 3, Q("55 mm")),
    Sketcher.Constraint("DistanceX", 0, 3, -1, 1, Q("73.050209 mm")),
    Sketcher.Constraint("DistanceY", -1, 1, 0, 3, Q("55.416459 mm")),
    Sketcher.Constraint("DistanceY", 5, 3, -1, 1, Q("201.656529 mm")),
    Sketcher.Constraint("DistanceY", -1, 1, 8, 3, Q("238.343471 mm")),
])
pocket7 = body.newObject("PartDesign::Pocket", "Pocket006")
pocket7.Profile = sketch12
pocket7.Type = "ThroughAll"
pocket7.Reversed = True

sketch13 = body.newObject("Sketcher::SketchObject", "Sketch012")
sketch13.AttachmentSupport = (doc.getObject("XZ_Plane"), [""])
sketch13.MapMode = "FlatFace"
sketch13.AttachmentOffset = App.Placement(V(0, 0, -5), App.Rotation())
sketch13.addGeometry([
    Part.Circle(V(-185.6, 30, 0), V(0, 0, 1), 2),
    Part.Circle(V(-235.6, 30, 0), V(0, 0, 1), 2),
    Part.Circle(V(-185.6, -30, 0), V(0, 0, 1), 2),
    Part.Circle(V(-235.6, -30, 0), V(0, 0, 1), 2),
], False)
sketch13.addConstraint([
    Sketcher.Constraint("Equal", 0, 1),
    Sketcher.Constraint("Equal", 1, 2),
    Sketcher.Constraint("Equal", 2, 3),
    Sketcher.Constraint("Symmetric", 0, 3, 2, 3, -1),
    Sketcher.Constraint("Symmetric", 1, 3, 3, 3, -1),
    Sketcher.Constraint("Horizontal", 0, 3, 1, 3),
    Sketcher.Constraint("Diameter", 0, Q("4 mm")),
    Sketcher.Constraint("DistanceY", -1, 1, 0, 3, Q("30 mm")),
    Sketcher.Constraint("DistanceX", 1, 3, 0, 3, Q("50 mm")),
    Sketcher.Constraint("DistanceX", 0, 3, -1, 1, Q("185.58 mm")),
])
pad6 = body.newObject("PartDesign::Pad", "Pad005")
pad6.Profile = sketch13
pad6.Length = 5

doc.recompute()
